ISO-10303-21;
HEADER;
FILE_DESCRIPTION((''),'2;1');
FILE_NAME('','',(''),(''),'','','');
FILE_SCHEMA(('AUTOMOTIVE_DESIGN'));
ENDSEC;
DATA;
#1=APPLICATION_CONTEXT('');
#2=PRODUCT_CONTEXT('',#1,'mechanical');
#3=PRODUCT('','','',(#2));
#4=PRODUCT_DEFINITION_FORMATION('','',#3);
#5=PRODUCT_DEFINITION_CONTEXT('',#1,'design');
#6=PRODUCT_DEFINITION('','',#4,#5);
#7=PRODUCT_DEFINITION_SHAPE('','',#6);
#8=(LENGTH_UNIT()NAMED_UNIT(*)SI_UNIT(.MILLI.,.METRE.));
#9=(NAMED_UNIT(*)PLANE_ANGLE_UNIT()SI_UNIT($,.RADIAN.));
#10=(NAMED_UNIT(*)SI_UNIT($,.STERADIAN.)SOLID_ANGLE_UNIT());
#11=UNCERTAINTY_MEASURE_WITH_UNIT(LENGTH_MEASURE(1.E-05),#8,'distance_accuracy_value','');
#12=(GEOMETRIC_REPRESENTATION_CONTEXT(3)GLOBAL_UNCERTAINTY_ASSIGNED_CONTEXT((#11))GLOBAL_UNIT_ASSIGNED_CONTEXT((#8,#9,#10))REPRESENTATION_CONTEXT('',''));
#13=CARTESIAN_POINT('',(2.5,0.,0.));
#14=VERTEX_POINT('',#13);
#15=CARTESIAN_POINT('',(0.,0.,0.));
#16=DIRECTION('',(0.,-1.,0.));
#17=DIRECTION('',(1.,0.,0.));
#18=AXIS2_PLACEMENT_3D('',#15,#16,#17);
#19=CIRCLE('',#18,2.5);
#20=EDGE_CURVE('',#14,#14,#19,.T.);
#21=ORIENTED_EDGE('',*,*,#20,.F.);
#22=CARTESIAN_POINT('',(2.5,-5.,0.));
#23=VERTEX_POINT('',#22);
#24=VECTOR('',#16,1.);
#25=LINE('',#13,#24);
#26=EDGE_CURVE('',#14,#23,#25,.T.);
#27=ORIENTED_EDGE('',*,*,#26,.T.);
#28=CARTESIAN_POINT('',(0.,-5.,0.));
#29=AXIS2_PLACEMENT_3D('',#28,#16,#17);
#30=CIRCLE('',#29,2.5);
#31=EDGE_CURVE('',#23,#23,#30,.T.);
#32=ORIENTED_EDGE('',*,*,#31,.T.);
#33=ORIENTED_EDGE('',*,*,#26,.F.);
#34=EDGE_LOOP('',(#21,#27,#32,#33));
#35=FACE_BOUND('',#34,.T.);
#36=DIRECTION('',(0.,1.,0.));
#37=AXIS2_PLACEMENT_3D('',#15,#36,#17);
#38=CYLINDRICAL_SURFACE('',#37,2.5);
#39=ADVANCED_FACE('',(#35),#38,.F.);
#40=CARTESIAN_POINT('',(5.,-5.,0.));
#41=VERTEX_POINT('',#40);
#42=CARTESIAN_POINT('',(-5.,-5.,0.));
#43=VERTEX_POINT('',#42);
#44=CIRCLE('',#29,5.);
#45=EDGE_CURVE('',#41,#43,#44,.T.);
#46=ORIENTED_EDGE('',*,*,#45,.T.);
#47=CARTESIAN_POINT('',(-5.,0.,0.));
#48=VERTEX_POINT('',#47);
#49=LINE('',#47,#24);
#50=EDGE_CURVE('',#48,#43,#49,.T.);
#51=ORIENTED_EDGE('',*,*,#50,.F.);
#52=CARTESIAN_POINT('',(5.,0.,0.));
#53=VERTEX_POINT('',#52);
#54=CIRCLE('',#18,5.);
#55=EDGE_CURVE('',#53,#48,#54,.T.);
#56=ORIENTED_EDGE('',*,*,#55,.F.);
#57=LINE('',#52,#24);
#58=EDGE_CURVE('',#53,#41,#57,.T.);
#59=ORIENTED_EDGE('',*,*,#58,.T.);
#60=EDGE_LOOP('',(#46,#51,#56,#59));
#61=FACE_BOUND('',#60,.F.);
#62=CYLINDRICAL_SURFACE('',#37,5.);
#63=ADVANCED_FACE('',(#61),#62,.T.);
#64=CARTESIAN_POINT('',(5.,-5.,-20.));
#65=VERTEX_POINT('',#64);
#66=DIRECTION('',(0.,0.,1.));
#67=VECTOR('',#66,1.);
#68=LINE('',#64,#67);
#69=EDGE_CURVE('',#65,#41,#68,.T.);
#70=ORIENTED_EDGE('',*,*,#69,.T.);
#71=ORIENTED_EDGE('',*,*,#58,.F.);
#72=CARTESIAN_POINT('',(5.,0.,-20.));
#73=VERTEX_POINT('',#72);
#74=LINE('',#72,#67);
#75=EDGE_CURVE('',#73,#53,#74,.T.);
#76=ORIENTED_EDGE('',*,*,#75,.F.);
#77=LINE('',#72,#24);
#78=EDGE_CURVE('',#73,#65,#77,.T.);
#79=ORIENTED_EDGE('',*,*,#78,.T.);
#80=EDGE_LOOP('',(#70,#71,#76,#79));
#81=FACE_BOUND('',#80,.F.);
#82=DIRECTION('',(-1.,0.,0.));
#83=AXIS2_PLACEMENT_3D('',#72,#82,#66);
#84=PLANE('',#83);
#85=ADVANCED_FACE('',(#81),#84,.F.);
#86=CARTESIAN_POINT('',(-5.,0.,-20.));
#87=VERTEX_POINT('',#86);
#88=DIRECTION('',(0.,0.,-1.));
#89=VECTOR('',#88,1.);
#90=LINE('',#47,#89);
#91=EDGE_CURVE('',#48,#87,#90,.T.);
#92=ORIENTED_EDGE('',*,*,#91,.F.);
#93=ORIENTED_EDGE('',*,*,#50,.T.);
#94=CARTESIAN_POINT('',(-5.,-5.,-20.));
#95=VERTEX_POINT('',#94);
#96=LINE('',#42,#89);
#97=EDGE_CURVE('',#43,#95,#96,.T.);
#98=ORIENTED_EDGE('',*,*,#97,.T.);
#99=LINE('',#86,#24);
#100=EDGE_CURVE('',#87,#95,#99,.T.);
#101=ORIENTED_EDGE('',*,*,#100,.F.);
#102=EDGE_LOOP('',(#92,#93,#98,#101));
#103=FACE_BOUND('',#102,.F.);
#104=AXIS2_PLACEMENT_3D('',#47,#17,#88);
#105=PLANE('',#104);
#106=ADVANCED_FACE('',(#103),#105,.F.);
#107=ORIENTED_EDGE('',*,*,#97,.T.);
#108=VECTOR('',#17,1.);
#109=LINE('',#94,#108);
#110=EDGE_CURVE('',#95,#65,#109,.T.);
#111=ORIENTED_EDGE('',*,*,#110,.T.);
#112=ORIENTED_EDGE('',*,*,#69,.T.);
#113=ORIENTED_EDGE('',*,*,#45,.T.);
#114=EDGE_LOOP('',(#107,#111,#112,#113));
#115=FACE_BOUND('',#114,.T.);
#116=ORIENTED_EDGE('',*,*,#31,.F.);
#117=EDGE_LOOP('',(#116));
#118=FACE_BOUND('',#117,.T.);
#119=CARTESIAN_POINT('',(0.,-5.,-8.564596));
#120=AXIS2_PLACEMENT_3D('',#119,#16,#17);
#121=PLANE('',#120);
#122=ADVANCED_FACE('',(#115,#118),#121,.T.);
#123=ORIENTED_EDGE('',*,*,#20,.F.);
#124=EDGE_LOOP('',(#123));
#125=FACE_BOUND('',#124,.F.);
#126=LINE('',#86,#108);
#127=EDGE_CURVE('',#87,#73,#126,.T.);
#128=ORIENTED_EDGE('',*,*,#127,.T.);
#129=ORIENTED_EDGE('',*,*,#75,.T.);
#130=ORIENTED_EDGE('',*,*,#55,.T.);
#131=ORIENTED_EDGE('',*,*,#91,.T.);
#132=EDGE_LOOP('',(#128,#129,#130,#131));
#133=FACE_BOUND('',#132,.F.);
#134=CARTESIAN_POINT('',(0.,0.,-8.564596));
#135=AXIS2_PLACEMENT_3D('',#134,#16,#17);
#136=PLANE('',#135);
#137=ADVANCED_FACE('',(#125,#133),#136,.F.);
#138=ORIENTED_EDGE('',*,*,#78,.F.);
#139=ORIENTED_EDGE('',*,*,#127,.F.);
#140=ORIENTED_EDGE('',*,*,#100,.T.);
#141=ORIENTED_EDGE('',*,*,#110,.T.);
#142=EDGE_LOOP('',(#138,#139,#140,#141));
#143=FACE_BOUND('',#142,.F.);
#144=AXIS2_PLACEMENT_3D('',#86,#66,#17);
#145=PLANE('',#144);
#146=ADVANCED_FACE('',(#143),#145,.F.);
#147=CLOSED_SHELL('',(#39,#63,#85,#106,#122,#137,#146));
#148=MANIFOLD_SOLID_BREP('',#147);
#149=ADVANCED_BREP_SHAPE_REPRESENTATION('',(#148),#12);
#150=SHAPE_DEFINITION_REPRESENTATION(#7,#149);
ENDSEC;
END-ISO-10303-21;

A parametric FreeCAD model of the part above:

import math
import FreeCAD as App
import Part
import Sketcher
from FreeCAD import Vector

doc = App.newDocument("Part")
body = doc.addObject("PartDesign::Body", "Body")

# Sketch on XZ plane
sketch1 = doc.addObject("Sketcher::SketchObject", "Sketch")
body.addObject(sketch1)
sketch1.AttachmentSupport = (doc.XZ_Plane, [""])
sketch1.MapMode = "FlatFace"
sketch1.addGeometry([
    Part.LineSegment(Vector(-5, 0, 0), Vector(-5, -20, 0)),  # 0
    Part.LineSegment(Vector(-5, -20, 0), Vector(5, -20, 0)),  # 1
    Part.LineSegment(Vector(5, -20, 0), Vector(5, 0, 0)),  # 2
    Part.ArcOfCircle(Part.Circle(Vector(0, 0, 0), Vector(0, 0, 1), 5), math.radians(0), math.radians(180)),  # 3
    Part.Circle(Vector(0, 0, 0), Vector(0, 0, 1), 2.5),  # 4
], False)
sketch1.addConstraint([
    Sketcher.Constraint("Coincident", 0, 2, 1, 1),
    Sketcher.Constraint("Coincident", 1, 2, 2, 1),
    Sketcher.Constraint("Tangent", 2, 2, 3, 1),
    Sketcher.Constraint("Tangent", 3, 2, 0, 1),
    Sketcher.Constraint("Vertical", 0),
    Sketcher.Constraint("Horizontal", 1),
    Sketcher.Constraint("Vertical", 2),
    Sketcher.Constraint("Coincident", 3, 3, -1, 1),
    Sketcher.Constraint("Coincident", 4, 3, -1, 1),
    Sketcher.Constraint("Diameter", 4, 5.0),
    Sketcher.Constraint("Radius", 3, 5.0),
    Sketcher.Constraint("DistanceY", 0, 2, 0, 1, 20.0),
])
pad1 = doc.addObject("PartDesign::Pad", "Pad")
body.addObject(pad1)
pad1.Profile = sketch1
pad1.Length = 5

doc.recompute()
